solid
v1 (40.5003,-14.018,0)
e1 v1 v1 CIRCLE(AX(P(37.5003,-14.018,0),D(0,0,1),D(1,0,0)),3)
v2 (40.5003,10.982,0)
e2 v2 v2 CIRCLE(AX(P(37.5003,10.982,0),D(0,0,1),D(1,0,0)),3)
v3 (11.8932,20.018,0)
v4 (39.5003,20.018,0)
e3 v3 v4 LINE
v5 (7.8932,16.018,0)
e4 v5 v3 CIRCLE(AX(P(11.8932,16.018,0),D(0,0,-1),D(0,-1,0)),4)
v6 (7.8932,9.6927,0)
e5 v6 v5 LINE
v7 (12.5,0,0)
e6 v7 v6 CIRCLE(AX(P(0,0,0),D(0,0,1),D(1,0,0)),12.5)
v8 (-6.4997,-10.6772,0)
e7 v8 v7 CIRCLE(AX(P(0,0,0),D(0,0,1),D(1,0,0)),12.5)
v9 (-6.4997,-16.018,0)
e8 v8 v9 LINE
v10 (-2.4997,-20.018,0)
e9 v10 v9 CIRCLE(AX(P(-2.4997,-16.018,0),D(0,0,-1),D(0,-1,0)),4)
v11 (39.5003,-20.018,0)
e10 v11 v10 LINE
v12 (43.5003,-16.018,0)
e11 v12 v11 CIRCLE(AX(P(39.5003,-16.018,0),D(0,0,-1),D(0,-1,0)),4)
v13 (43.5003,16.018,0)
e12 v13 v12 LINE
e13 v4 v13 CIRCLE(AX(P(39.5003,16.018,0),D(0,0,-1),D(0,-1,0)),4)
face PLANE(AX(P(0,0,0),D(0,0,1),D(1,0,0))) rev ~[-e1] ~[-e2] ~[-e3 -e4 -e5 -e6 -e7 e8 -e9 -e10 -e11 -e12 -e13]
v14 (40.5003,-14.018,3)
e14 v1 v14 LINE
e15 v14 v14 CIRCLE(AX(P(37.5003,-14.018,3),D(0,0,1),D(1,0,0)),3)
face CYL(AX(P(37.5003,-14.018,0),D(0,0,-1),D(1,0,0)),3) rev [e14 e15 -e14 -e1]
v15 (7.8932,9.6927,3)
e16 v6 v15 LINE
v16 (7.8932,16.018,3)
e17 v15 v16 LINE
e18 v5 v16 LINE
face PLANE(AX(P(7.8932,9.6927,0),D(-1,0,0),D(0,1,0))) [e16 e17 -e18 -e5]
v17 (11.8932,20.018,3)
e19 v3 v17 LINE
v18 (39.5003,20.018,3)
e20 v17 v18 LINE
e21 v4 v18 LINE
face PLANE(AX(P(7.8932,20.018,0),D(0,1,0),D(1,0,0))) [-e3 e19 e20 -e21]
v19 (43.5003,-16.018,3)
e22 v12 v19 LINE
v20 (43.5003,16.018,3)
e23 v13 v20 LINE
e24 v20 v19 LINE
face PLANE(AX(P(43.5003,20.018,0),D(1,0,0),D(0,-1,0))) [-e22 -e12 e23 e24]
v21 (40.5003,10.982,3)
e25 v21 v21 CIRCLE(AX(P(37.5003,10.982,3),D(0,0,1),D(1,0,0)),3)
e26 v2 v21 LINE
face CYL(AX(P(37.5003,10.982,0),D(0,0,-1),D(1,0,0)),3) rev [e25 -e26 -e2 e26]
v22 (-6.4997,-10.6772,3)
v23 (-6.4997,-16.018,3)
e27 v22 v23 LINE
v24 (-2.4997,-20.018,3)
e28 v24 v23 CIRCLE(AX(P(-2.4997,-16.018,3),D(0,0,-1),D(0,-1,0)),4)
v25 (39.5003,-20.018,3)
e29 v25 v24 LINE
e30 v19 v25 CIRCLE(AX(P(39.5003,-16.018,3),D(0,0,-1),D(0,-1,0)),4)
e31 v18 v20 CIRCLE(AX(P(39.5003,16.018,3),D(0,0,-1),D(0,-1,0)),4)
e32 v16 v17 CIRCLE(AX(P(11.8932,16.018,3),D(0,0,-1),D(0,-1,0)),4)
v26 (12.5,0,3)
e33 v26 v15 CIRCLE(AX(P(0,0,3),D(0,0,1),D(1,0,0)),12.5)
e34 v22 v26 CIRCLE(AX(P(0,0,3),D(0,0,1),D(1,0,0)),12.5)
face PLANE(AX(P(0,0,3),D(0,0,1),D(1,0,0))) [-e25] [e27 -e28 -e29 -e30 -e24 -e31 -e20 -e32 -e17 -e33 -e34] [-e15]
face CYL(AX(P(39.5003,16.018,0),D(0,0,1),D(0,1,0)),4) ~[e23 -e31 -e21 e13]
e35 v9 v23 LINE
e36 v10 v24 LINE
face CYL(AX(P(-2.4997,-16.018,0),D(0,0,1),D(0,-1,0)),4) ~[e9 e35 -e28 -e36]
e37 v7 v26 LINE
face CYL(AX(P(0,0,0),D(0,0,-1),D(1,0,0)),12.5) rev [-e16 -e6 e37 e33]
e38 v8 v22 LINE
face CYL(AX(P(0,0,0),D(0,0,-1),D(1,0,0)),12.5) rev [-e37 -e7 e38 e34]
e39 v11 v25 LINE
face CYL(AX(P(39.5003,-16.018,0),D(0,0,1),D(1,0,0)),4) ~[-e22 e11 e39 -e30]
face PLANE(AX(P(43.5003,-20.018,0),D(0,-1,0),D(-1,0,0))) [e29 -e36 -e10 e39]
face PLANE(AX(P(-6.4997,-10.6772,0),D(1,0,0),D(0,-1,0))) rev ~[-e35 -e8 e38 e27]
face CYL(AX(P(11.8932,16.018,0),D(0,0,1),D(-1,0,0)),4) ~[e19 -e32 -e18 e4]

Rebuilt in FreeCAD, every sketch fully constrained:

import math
import FreeCAD as App
import Part
import Sketcher
Q = App.Units.Quantity


def edges_at(feature, points):
    """Names of the edges that pass closest to the given points."""
    edges = feature.Shape.Edges
    near = lambda p: min(range(len(edges)), key=lambda i: edges[i].distToShape(Part.Vertex(*p))[0])
    return sorted({f"Edge{near(p) + 1}" for p in points})

doc = App.newDocument("Part")
body = doc.addObject("PartDesign::Body", "Body")

# Sketch on XY plane
sketch1 = body.newObject("Sketcher::SketchObject", "Sketch")
sketch1.AttachmentSupport = (doc.getObject("XY_Plane"), [""])
sketch1.MapMode = "FlatFace"
sketch1.addGeometry([
    Part.ArcOfCircle(Part.Circle(App.Vector(0, 0, 0), App.Vector(0, 0, 1), 12.5), math.radians(-121), math.radians(51)),  # 0
    Part.LineSegment(App.Vector(-6.5, -10.7, 0), App.Vector(-6.5, -20, 0)),  # 1
    Part.LineSegment(App.Vector(-6.5, -20, 0), App.Vector(43.5, -20, 0)),  # 2
    Part.LineSegment(App.Vector(43.5, -20, 0), App.Vector(43.5, 20, 0)),  # 3
    Part.LineSegment(App.Vector(43.5, 20, 0), App.Vector(7.9, 20, 0)),  # 4
    Part.LineSegment(App.Vector(7.9, 20, 0), App.Vector(7.9, 9.7, 0)),  # 5
    Part.Circle(App.Vector(37.5, -14, 0), App.Vector(0, 0, 1), 3),  # 6
    Part.Circle(App.Vector(37.5, 11, 0), App.Vector(0, 0, 1), 3),  # 7
], False)
sketch1.addConstraint([
    Sketcher.Constraint("Coincident", 0, 1, 1, 1),
    Sketcher.Constraint("Coincident", 1, 2, 2, 1),
    Sketcher.Constraint("Coincident", 2, 2, 3, 1),
    Sketcher.Constraint("Coincident", 3, 2, 4, 1),
    Sketcher.Constraint("Coincident", 4, 2, 5, 1),
    Sketcher.Constraint("Coincident", 5, 2, 0, 2),
    Sketcher.Constraint("Vertical", 1),
    Sketcher.Constraint("Horizontal", 2),
    Sketcher.Constraint("Vertical", 3),
    Sketcher.Constraint("Horizontal", 4),
    Sketcher.Constraint("Vertical", 5),
    Sketcher.Constraint("Coincident", 0, 3, -1, 1),
    Sketcher.Constraint("Equal", 6, 7),
    Sketcher.Constraint("Vertical", 6, 3, 7, 3),
    Sketcher.Constraint("Diameter", 6, Q("6 mm")),
    Sketcher.Constraint("Radius", 0, Q("12.5 mm")),
    Sketcher.Constraint("DistanceX", 2, 1, 2, 2, Q("50 mm")),
    Sketcher.Constraint("DistanceY", 6, 3, 7, 3, Q("25 mm")),
    Sketcher.Constraint("DistanceY", 1, 2, 6, 3, Q("6 mm")),
    Sketcher.Constraint("DistanceX", 6, 3, 2, 2, Q("6 mm")),
    Sketcher.Constraint("DistanceX", 4, 2, 4, 1, Q("35.607 mm")),
    Sketcher.Constraint("DistanceY", 3, 1, 3, 2, Q("40.036 mm")),
    Sketcher.Constraint("DistanceY", 0, 1, 5, 2, Q("20.37 mm")),
    Sketcher.Constraint("DistanceY", 1, 2, 1, 1, Q("9.3408 mm")),
])
pad1 = body.newObject("PartDesign::Pad", "Pad")
pad1.Profile = sketch1
pad1.Length = 3
doc.recompute()

fillet = body.newObject("PartDesign::Fillet", "Fillet")
fillet.Base = (pad1, edges_at(pad1, [
    (43.5, -20.018, 1.5),
    (43.5, 20.018, 1.5),
    (-6.5, -20.018, 1.5),
    (7.893, 20.018, 1.5),
]))
fillet.Radius = 4

doc.recompute()
